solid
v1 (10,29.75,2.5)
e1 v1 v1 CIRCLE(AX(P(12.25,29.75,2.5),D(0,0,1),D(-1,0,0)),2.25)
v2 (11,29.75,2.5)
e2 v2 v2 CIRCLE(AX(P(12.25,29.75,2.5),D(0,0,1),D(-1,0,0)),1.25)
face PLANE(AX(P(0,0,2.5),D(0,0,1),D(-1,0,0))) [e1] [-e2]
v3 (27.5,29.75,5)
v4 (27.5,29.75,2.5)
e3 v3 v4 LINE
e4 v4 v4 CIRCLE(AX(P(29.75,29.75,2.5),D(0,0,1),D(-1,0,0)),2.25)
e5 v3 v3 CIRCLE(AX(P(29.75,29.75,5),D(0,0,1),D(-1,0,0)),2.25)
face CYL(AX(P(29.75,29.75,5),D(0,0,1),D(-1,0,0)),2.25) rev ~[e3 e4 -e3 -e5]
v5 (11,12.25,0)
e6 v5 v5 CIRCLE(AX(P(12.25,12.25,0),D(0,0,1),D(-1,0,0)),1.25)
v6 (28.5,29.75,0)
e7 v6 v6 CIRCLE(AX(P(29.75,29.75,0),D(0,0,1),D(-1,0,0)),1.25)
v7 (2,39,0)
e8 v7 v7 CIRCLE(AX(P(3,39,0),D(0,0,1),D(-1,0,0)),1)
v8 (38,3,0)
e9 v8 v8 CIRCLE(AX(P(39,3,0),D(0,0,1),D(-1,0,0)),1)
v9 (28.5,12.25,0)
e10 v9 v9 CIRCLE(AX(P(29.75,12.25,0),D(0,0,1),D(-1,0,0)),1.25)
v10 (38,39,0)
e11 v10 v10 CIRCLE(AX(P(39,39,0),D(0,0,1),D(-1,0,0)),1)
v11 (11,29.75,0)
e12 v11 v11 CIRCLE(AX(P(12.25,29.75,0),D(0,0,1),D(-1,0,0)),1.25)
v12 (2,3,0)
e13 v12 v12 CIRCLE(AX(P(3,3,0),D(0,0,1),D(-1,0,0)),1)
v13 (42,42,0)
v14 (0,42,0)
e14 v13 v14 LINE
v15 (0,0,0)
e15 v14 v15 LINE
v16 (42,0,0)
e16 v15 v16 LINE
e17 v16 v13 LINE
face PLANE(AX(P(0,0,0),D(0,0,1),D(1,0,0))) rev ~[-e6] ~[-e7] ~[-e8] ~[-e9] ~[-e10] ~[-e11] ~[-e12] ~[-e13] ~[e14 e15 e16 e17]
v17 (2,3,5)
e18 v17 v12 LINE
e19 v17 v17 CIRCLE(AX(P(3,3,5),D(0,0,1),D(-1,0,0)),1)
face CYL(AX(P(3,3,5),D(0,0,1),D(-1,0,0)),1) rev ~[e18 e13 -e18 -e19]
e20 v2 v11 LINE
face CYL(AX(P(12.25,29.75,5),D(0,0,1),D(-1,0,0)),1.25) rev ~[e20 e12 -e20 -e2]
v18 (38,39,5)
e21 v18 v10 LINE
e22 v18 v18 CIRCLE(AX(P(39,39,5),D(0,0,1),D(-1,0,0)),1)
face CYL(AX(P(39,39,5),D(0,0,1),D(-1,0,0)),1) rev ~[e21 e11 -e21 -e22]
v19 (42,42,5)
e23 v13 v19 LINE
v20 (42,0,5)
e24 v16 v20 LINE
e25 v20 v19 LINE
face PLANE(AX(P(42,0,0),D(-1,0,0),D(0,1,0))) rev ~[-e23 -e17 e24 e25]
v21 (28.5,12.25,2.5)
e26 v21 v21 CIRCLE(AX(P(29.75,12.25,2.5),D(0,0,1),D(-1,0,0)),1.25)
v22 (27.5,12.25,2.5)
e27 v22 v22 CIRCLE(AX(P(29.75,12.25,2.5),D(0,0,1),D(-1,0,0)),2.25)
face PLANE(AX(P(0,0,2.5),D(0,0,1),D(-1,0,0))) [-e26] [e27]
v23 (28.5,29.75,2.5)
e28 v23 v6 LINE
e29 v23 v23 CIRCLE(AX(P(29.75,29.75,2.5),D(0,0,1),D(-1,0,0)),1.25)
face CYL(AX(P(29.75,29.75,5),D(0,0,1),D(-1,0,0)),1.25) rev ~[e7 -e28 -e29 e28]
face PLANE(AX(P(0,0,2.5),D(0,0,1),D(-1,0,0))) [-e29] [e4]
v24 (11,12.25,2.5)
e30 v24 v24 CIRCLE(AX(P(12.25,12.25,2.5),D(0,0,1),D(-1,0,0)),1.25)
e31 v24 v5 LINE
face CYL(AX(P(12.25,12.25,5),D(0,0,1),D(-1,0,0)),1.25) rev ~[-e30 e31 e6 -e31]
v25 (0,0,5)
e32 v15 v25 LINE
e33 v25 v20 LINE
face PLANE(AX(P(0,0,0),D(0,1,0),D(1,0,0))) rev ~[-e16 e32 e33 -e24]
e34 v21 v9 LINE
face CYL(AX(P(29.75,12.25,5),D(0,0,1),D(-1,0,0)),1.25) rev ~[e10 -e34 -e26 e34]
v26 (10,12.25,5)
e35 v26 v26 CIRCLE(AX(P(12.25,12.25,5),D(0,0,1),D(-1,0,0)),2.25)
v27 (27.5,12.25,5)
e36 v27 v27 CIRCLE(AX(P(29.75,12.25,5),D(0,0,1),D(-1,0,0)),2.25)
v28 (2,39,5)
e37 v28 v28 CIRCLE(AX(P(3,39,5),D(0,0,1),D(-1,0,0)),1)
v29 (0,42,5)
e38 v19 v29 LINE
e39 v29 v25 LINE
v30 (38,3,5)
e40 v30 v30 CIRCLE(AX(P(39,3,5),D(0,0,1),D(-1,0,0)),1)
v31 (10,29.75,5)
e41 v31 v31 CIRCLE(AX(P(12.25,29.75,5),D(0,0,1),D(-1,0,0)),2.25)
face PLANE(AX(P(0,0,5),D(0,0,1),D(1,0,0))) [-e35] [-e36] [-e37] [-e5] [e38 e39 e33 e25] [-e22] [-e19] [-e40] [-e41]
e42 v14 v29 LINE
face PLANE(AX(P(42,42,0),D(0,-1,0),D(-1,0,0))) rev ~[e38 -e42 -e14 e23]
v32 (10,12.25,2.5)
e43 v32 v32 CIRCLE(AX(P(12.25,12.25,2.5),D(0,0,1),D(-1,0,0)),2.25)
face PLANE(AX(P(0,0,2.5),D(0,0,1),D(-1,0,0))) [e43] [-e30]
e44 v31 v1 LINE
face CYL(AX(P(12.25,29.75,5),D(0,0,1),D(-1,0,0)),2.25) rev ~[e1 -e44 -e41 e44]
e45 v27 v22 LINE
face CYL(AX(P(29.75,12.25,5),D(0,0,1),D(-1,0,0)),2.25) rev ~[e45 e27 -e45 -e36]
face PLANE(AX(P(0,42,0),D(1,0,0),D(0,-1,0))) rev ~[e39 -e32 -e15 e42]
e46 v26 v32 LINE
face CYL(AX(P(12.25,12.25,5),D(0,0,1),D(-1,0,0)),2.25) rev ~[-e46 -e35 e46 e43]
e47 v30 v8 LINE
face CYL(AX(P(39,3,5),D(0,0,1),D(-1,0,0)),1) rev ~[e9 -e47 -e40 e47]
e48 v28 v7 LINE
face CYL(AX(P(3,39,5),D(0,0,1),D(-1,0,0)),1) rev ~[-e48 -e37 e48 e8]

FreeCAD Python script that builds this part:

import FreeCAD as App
import Part
import Sketcher

doc = App.newDocument("Part")
body = doc.addObject("PartDesign::Body", "Body")

# Sketch on XY plane
sketch1 = body.newObject("Sketcher::SketchObject", "Sketch")
sketch1.AttachmentSupport = (doc.getObject("XY_Plane"), [""])
sketch1.MapMode = "FlatFace"
sketch1.addGeometry(Part.LineSegment(App.Vector(0, 42, 0), App.Vector(0, 0, 0)), False)
sketch1.addGeometry(Part.LineSegment(App.Vector(0, 0, 0), App.Vector(42, 0, 0)), False)
sketch1.addGeometry(Part.LineSegment(App.Vector(42, 0, 0), App.Vector(42, 42, 0)), False)
sketch1.addGeometry(Part.LineSegment(App.Vector(42, 42, 0), App.Vector(0, 42, 0)), False)
sketch1.addConstraint(Sketcher.Constraint("Coincident", 0, 2, 1, 1))
sketch1.addConstraint(Sketcher.Constraint("Coincident", 1, 2, 2, 1))
sketch1.addConstraint(Sketcher.Constraint("Coincident", 2, 2, 3, 1))
sketch1.addConstraint(Sketcher.Constraint("Coincident", 3, 2, 0, 1))
sketch1.addConstraint(Sketcher.Constraint("Vertical", 0))
sketch1.addConstraint(Sketcher.Constraint("Horizontal", 1))
sketch1.addConstraint(Sketcher.Constraint("Vertical", 2))
sketch1.addConstraint(Sketcher.Constraint("Horizontal", 3))
sketch1.addConstraint(Sketcher.Constraint("Coincident", 0, 2, -1, 1))
sketch1.addConstraint(Sketcher.Constraint("Equal", 3, 0))
sketch1.addConstraint(Sketcher.Constraint("DistanceX", 1, 1, 1, 2, 42.0))
pad1 = body.newObject("PartDesign::Pad", "Pad")
pad1.Profile = sketch1
pad1.Length = 5

# Sketch on XY plane
sketch2 = body.newObject("Sketcher::SketchObject", "Sketch001")
sketch2.AttachmentSupport = (doc.getObject("XY_Plane"), [""])
sketch2.MapMode = "FlatFace"
sketch2.AttachmentOffset = App.Placement(App.Vector(0, 0, 5), App.Rotation())
sketch2.addGeometry(Part.Circle(App.Vector(3, 39, 0), App.Vector(0, 0, 1), 1), False)
sketch2.addGeometry(Part.Circle(App.Vector(39, 39, 0), App.Vector(0, 0, 1), 1), False)
sketch2.addGeometry(Part.Circle(App.Vector(3, 3, 0), App.Vector(0, 0, 1), 1), False)
sketch2.addGeometry(Part.Circle(App.Vector(39, 3, 0), App.Vector(0, 0, 1), 1), False)
sketch2.addConstraint(Sketcher.Constraint("Equal", 0, 1))
sketch2.addConstraint(Sketcher.Constraint("Equal", 1, 2))
sketch2.addConstraint(Sketcher.Constraint("Equal", 2, 3))
sketch2.addConstraint(Sketcher.Constraint("Horizontal", 0, 3, 1, 3))
sketch2.addConstraint(Sketcher.Constraint("Horizontal", 2, 3, 3, 3))
sketch2.addConstraint(Sketcher.Constraint("Vertical", 0, 3, 2, 3))
sketch2.addConstraint(Sketcher.Constraint("Vertical", 1, 3, 3, 3))
sketch2.addConstraint(Sketcher.Constraint("Diameter", 0, 2.0))
sketch2.addConstraint(Sketcher.Constraint("DistanceX", -1, 1, 0, 3, 3.0))
sketch2.addConstraint(Sketcher.Constraint("DistanceY", -1, 1, 2, 3, 3.0))
sketch2.addConstraint(Sketcher.Constraint("DistanceY", -1, 1, 0, 3, 39.0))
sketch2.addConstraint(Sketcher.Constraint("DistanceX", -1, 1, 1, 3, 39.0))
pocket1 = body.newObject("PartDesign::Pocket", "Pocket")
pocket1.Profile = sketch2
pocket1.Length = 5

# Sketch on XY plane
sketch3 = body.newObject("Sketcher::SketchObject", "Sketch002")
sketch3.AttachmentSupport = (doc.getObject("XY_Plane"), [""])
sketch3.MapMode = "FlatFace"
sketch3.AttachmentOffset = App.Placement(App.Vector(0, 0, 5), App.Rotation())
sketch3.addGeometry(Part.Circle(App.Vector(12.2, 29.8, 0), App.Vector(0, 0, 1), 1.2), False)
sketch3.addGeometry(Part.Circle(App.Vector(29.8, 29.8, 0), App.Vector(0, 0, 1), 1.2), False)
sketch3.addGeometry(Part.Circle(App.Vector(12.2, 12.2, 0), App.Vector(0, 0, 1), 1.2), False)
sketch3.addGeometry(Part.Circle(App.Vector(29.8, 12.2, 0), App.Vector(0, 0, 1), 1.2), False)
sketch3.addConstraint(Sketcher.Constraint("Equal", 0, 1))
sketch3.addConstraint(Sketcher.Constraint("Equal", 1, 2))
sketch3.addConstraint(Sketcher.Constraint("Equal", 2, 3))
sketch3.addConstraint(Sketcher.Constraint("Horizontal", 0, 3, 1, 3))
sketch3.addConstraint(Sketcher.Constraint("Horizontal", 2, 3, 3, 3))
sketch3.addConstraint(Sketcher.Constraint("Vertical", 0, 3, 2, 3))
sketch3.addConstraint(Sketcher.Constraint("Vertical", 1, 3, 3, 3))
sketch3.addConstraint(Sketcher.Constraint("Diameter", 0, 2.5))
sketch3.addConstraint(Sketcher.Constraint("DistanceX", -1, 1, 0, 3, 12.25))
sketch3.addConstraint(Sketcher.Constraint("DistanceY", -1, 1, 2, 3, 12.25))
sketch3.addConstraint(Sketcher.Constraint("DistanceX", 0, 3, 1, 3, 17.5))
sketch3.addConstraint(Sketcher.Constraint("DistanceY", 2, 3, 0, 3, 17.5))
pocket2 = body.newObject("PartDesign::Pocket", "Pocket001")
pocket2.Profile = sketch3
pocket2.Length = 5

# Sketch on XY plane
sketch4 = body.newObject("Sketcher::SketchObject", "Sketch003")
sketch4.AttachmentSupport = (doc.getObject("XY_Plane"), [""])
sketch4.MapMode = "FlatFace"
sketch4.AttachmentOffset = App.Placement(App.Vector(0, 0, 5), App.Rotation())
sketch4.addGeometry(Part.Circle(App.Vector(12.2, 29.8, 0), App.Vector(0, 0, 1), 2.2), False)
sketch4.addGeometry(Part.Circle(App.Vector(12.2, 29.8, 0), App.Vector(0, 0, 1), 1.2), False)
sketch4.addGeometry(Part.Circle(App.Vector(29.8, 29.8, 0), App.Vector(0, 0, 1), 2.2), False)
sketch4.addGeometry(Part.Circle(App.Vector(29.8, 29.8, 0), App.Vector(0, 0, 1), 1.2), False)
sketch4.addGeometry(Part.Circle(App.Vector(12.2, 12.2, 0), App.Vector(0, 0, 1), 2.2), False)
sketch4.addGeometry(Part.Circle(App.Vector(12.2, 12.2, 0), App.Vector(0, 0, 1), 1.2), False)
sketch4.addGeometry(Part.Circle(App.Vector(29.8, 12.2, 0), App.Vector(0, 0, 1), 2.2), False)
sketch4.addGeometry(Part.Circle(App.Vector(29.8, 12.2, 0), App.Vector(0, 0, 1), 1.2), False)
sketch4.addConstraint(Sketcher.Constraint("Coincident", 1, 3, 0, 3))
sketch4.addConstraint(Sketcher.Constraint("Coincident", 3, 3, 2, 3))
sketch4.addConstraint(Sketcher.Constraint("Coincident", 5, 3, 4, 3))
sketch4.addConstraint(Sketcher.Constraint("Coincident", 7, 3, 6, 3))
sketch4.addConstraint(Sketcher.Constraint("Equal", 0, 2))
sketch4.addConstraint(Sketcher.Constraint("Equal", 1, 3))
sketch4.addConstraint(Sketcher.Constraint("Equal", 2, 4))
sketch4.addConstraint(Sketcher.Constraint("Equal", 3, 5))
sketch4.addConstraint(Sketcher.Constraint("Equal", 4, 6))
sketch4.addConstraint(Sketcher.Constraint("Equal", 5, 7))
sketch4.addConstraint(Sketcher.Constraint("Horizontal", 1, 3, 2, 3))
sketch4.addConstraint(Sketcher.Constraint("Horizontal", 5, 3, 6, 3))
sketch4.addConstraint(Sketcher.Constraint("Vertical", 1, 3, 4, 3))
sketch4.addConstraint(Sketcher.Constraint("Vertical", 3, 3, 6, 3))
sketch4.addConstraint(Sketcher.Constraint("Diameter", 0, 4.5))
sketch4.addConstraint(Sketcher.Constraint("Diameter", 1, 2.5))
sketch4.addConstraint(Sketcher.Constraint("DistanceX", 0, 3, 2, 3, 17.5))
sketch4.addConstraint(Sketcher.Constraint("DistanceY", 4, 3, 0, 3, 17.5))
sketch4.addConstraint(Sketcher.Constraint("DistanceX", -1, 1, 0, 3, 12.25))
sketch4.addConstraint(Sketcher.Constraint("DistanceY", -1, 1, 0, 3, 29.75))
pocket3 = body.newObject("PartDesign::Pocket", "Pocket002")
pocket3.Profile = sketch4
pocket3.Length = 2.5

doc.recompute()
